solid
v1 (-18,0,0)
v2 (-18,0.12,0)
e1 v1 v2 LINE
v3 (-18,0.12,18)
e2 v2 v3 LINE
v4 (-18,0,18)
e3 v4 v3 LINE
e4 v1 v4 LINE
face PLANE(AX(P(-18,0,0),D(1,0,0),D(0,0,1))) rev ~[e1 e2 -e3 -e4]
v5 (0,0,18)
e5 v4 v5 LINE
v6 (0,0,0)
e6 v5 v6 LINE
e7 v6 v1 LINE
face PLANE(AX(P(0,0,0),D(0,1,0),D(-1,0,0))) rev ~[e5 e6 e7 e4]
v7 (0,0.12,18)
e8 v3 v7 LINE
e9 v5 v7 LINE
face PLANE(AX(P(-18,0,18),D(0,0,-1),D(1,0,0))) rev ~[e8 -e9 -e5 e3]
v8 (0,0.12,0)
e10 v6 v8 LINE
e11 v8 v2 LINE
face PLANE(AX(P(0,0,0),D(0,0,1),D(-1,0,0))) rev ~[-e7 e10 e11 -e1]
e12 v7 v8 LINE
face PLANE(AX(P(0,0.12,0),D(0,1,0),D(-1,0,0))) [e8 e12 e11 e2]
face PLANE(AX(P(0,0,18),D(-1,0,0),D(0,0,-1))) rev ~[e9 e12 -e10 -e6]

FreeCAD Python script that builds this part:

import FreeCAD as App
import Part
import Sketcher

V = App.Vector
Q = App.Units.Quantity


def add_polygon(sketch, points):
    """Adds a closed chain of lines whose ends are joined by coincident constraints."""
    first, n = sketch.GeometryCount, len(points)
    for a, b in zip(points, points[1:] + points[:1]):
        sketch.addGeometry(Part.LineSegment(App.Vector(*a, 0), App.Vector(*b, 0)), False)
    for i in range(n):
        sketch.addConstraint(Sketcher.Constraint("Coincident", first + i, 2, first + (i + 1) % n, 1))

doc = App.newDocument("Part")
body = doc.addObject("PartDesign::Body", "Body")

sketch1 = body.newObject("Sketcher::SketchObject", "Sketch")
sketch1.AttachmentSupport = (doc.getObject("XZ_Plane"), [""])
sketch1.MapMode = "FlatFace"
add_polygon(sketch1, [(0, 18), (0, 0), (-18, 0), (-18, 18)])
sketch1.addConstraint([
    Sketcher.Constraint("Vertical", 0),
    Sketcher.Constraint("Horizontal", 1),
    Sketcher.Constraint("Vertical", 2),
    Sketcher.Constraint("Horizontal", 3),
    Sketcher.Constraint("Coincident", 0, 2, -1, 1),
    Sketcher.Constraint("Equal", 3, 0),
    Sketcher.Constraint("DistanceX", 1, 2, 1, 1, Q("18 mm")),
])
pad1 = body.newObject("PartDesign::Pad", "Pad")
pad1.Profile = sketch1
pad1.Length = 0.12
pad1.Reversed = True

doc.recompute()
